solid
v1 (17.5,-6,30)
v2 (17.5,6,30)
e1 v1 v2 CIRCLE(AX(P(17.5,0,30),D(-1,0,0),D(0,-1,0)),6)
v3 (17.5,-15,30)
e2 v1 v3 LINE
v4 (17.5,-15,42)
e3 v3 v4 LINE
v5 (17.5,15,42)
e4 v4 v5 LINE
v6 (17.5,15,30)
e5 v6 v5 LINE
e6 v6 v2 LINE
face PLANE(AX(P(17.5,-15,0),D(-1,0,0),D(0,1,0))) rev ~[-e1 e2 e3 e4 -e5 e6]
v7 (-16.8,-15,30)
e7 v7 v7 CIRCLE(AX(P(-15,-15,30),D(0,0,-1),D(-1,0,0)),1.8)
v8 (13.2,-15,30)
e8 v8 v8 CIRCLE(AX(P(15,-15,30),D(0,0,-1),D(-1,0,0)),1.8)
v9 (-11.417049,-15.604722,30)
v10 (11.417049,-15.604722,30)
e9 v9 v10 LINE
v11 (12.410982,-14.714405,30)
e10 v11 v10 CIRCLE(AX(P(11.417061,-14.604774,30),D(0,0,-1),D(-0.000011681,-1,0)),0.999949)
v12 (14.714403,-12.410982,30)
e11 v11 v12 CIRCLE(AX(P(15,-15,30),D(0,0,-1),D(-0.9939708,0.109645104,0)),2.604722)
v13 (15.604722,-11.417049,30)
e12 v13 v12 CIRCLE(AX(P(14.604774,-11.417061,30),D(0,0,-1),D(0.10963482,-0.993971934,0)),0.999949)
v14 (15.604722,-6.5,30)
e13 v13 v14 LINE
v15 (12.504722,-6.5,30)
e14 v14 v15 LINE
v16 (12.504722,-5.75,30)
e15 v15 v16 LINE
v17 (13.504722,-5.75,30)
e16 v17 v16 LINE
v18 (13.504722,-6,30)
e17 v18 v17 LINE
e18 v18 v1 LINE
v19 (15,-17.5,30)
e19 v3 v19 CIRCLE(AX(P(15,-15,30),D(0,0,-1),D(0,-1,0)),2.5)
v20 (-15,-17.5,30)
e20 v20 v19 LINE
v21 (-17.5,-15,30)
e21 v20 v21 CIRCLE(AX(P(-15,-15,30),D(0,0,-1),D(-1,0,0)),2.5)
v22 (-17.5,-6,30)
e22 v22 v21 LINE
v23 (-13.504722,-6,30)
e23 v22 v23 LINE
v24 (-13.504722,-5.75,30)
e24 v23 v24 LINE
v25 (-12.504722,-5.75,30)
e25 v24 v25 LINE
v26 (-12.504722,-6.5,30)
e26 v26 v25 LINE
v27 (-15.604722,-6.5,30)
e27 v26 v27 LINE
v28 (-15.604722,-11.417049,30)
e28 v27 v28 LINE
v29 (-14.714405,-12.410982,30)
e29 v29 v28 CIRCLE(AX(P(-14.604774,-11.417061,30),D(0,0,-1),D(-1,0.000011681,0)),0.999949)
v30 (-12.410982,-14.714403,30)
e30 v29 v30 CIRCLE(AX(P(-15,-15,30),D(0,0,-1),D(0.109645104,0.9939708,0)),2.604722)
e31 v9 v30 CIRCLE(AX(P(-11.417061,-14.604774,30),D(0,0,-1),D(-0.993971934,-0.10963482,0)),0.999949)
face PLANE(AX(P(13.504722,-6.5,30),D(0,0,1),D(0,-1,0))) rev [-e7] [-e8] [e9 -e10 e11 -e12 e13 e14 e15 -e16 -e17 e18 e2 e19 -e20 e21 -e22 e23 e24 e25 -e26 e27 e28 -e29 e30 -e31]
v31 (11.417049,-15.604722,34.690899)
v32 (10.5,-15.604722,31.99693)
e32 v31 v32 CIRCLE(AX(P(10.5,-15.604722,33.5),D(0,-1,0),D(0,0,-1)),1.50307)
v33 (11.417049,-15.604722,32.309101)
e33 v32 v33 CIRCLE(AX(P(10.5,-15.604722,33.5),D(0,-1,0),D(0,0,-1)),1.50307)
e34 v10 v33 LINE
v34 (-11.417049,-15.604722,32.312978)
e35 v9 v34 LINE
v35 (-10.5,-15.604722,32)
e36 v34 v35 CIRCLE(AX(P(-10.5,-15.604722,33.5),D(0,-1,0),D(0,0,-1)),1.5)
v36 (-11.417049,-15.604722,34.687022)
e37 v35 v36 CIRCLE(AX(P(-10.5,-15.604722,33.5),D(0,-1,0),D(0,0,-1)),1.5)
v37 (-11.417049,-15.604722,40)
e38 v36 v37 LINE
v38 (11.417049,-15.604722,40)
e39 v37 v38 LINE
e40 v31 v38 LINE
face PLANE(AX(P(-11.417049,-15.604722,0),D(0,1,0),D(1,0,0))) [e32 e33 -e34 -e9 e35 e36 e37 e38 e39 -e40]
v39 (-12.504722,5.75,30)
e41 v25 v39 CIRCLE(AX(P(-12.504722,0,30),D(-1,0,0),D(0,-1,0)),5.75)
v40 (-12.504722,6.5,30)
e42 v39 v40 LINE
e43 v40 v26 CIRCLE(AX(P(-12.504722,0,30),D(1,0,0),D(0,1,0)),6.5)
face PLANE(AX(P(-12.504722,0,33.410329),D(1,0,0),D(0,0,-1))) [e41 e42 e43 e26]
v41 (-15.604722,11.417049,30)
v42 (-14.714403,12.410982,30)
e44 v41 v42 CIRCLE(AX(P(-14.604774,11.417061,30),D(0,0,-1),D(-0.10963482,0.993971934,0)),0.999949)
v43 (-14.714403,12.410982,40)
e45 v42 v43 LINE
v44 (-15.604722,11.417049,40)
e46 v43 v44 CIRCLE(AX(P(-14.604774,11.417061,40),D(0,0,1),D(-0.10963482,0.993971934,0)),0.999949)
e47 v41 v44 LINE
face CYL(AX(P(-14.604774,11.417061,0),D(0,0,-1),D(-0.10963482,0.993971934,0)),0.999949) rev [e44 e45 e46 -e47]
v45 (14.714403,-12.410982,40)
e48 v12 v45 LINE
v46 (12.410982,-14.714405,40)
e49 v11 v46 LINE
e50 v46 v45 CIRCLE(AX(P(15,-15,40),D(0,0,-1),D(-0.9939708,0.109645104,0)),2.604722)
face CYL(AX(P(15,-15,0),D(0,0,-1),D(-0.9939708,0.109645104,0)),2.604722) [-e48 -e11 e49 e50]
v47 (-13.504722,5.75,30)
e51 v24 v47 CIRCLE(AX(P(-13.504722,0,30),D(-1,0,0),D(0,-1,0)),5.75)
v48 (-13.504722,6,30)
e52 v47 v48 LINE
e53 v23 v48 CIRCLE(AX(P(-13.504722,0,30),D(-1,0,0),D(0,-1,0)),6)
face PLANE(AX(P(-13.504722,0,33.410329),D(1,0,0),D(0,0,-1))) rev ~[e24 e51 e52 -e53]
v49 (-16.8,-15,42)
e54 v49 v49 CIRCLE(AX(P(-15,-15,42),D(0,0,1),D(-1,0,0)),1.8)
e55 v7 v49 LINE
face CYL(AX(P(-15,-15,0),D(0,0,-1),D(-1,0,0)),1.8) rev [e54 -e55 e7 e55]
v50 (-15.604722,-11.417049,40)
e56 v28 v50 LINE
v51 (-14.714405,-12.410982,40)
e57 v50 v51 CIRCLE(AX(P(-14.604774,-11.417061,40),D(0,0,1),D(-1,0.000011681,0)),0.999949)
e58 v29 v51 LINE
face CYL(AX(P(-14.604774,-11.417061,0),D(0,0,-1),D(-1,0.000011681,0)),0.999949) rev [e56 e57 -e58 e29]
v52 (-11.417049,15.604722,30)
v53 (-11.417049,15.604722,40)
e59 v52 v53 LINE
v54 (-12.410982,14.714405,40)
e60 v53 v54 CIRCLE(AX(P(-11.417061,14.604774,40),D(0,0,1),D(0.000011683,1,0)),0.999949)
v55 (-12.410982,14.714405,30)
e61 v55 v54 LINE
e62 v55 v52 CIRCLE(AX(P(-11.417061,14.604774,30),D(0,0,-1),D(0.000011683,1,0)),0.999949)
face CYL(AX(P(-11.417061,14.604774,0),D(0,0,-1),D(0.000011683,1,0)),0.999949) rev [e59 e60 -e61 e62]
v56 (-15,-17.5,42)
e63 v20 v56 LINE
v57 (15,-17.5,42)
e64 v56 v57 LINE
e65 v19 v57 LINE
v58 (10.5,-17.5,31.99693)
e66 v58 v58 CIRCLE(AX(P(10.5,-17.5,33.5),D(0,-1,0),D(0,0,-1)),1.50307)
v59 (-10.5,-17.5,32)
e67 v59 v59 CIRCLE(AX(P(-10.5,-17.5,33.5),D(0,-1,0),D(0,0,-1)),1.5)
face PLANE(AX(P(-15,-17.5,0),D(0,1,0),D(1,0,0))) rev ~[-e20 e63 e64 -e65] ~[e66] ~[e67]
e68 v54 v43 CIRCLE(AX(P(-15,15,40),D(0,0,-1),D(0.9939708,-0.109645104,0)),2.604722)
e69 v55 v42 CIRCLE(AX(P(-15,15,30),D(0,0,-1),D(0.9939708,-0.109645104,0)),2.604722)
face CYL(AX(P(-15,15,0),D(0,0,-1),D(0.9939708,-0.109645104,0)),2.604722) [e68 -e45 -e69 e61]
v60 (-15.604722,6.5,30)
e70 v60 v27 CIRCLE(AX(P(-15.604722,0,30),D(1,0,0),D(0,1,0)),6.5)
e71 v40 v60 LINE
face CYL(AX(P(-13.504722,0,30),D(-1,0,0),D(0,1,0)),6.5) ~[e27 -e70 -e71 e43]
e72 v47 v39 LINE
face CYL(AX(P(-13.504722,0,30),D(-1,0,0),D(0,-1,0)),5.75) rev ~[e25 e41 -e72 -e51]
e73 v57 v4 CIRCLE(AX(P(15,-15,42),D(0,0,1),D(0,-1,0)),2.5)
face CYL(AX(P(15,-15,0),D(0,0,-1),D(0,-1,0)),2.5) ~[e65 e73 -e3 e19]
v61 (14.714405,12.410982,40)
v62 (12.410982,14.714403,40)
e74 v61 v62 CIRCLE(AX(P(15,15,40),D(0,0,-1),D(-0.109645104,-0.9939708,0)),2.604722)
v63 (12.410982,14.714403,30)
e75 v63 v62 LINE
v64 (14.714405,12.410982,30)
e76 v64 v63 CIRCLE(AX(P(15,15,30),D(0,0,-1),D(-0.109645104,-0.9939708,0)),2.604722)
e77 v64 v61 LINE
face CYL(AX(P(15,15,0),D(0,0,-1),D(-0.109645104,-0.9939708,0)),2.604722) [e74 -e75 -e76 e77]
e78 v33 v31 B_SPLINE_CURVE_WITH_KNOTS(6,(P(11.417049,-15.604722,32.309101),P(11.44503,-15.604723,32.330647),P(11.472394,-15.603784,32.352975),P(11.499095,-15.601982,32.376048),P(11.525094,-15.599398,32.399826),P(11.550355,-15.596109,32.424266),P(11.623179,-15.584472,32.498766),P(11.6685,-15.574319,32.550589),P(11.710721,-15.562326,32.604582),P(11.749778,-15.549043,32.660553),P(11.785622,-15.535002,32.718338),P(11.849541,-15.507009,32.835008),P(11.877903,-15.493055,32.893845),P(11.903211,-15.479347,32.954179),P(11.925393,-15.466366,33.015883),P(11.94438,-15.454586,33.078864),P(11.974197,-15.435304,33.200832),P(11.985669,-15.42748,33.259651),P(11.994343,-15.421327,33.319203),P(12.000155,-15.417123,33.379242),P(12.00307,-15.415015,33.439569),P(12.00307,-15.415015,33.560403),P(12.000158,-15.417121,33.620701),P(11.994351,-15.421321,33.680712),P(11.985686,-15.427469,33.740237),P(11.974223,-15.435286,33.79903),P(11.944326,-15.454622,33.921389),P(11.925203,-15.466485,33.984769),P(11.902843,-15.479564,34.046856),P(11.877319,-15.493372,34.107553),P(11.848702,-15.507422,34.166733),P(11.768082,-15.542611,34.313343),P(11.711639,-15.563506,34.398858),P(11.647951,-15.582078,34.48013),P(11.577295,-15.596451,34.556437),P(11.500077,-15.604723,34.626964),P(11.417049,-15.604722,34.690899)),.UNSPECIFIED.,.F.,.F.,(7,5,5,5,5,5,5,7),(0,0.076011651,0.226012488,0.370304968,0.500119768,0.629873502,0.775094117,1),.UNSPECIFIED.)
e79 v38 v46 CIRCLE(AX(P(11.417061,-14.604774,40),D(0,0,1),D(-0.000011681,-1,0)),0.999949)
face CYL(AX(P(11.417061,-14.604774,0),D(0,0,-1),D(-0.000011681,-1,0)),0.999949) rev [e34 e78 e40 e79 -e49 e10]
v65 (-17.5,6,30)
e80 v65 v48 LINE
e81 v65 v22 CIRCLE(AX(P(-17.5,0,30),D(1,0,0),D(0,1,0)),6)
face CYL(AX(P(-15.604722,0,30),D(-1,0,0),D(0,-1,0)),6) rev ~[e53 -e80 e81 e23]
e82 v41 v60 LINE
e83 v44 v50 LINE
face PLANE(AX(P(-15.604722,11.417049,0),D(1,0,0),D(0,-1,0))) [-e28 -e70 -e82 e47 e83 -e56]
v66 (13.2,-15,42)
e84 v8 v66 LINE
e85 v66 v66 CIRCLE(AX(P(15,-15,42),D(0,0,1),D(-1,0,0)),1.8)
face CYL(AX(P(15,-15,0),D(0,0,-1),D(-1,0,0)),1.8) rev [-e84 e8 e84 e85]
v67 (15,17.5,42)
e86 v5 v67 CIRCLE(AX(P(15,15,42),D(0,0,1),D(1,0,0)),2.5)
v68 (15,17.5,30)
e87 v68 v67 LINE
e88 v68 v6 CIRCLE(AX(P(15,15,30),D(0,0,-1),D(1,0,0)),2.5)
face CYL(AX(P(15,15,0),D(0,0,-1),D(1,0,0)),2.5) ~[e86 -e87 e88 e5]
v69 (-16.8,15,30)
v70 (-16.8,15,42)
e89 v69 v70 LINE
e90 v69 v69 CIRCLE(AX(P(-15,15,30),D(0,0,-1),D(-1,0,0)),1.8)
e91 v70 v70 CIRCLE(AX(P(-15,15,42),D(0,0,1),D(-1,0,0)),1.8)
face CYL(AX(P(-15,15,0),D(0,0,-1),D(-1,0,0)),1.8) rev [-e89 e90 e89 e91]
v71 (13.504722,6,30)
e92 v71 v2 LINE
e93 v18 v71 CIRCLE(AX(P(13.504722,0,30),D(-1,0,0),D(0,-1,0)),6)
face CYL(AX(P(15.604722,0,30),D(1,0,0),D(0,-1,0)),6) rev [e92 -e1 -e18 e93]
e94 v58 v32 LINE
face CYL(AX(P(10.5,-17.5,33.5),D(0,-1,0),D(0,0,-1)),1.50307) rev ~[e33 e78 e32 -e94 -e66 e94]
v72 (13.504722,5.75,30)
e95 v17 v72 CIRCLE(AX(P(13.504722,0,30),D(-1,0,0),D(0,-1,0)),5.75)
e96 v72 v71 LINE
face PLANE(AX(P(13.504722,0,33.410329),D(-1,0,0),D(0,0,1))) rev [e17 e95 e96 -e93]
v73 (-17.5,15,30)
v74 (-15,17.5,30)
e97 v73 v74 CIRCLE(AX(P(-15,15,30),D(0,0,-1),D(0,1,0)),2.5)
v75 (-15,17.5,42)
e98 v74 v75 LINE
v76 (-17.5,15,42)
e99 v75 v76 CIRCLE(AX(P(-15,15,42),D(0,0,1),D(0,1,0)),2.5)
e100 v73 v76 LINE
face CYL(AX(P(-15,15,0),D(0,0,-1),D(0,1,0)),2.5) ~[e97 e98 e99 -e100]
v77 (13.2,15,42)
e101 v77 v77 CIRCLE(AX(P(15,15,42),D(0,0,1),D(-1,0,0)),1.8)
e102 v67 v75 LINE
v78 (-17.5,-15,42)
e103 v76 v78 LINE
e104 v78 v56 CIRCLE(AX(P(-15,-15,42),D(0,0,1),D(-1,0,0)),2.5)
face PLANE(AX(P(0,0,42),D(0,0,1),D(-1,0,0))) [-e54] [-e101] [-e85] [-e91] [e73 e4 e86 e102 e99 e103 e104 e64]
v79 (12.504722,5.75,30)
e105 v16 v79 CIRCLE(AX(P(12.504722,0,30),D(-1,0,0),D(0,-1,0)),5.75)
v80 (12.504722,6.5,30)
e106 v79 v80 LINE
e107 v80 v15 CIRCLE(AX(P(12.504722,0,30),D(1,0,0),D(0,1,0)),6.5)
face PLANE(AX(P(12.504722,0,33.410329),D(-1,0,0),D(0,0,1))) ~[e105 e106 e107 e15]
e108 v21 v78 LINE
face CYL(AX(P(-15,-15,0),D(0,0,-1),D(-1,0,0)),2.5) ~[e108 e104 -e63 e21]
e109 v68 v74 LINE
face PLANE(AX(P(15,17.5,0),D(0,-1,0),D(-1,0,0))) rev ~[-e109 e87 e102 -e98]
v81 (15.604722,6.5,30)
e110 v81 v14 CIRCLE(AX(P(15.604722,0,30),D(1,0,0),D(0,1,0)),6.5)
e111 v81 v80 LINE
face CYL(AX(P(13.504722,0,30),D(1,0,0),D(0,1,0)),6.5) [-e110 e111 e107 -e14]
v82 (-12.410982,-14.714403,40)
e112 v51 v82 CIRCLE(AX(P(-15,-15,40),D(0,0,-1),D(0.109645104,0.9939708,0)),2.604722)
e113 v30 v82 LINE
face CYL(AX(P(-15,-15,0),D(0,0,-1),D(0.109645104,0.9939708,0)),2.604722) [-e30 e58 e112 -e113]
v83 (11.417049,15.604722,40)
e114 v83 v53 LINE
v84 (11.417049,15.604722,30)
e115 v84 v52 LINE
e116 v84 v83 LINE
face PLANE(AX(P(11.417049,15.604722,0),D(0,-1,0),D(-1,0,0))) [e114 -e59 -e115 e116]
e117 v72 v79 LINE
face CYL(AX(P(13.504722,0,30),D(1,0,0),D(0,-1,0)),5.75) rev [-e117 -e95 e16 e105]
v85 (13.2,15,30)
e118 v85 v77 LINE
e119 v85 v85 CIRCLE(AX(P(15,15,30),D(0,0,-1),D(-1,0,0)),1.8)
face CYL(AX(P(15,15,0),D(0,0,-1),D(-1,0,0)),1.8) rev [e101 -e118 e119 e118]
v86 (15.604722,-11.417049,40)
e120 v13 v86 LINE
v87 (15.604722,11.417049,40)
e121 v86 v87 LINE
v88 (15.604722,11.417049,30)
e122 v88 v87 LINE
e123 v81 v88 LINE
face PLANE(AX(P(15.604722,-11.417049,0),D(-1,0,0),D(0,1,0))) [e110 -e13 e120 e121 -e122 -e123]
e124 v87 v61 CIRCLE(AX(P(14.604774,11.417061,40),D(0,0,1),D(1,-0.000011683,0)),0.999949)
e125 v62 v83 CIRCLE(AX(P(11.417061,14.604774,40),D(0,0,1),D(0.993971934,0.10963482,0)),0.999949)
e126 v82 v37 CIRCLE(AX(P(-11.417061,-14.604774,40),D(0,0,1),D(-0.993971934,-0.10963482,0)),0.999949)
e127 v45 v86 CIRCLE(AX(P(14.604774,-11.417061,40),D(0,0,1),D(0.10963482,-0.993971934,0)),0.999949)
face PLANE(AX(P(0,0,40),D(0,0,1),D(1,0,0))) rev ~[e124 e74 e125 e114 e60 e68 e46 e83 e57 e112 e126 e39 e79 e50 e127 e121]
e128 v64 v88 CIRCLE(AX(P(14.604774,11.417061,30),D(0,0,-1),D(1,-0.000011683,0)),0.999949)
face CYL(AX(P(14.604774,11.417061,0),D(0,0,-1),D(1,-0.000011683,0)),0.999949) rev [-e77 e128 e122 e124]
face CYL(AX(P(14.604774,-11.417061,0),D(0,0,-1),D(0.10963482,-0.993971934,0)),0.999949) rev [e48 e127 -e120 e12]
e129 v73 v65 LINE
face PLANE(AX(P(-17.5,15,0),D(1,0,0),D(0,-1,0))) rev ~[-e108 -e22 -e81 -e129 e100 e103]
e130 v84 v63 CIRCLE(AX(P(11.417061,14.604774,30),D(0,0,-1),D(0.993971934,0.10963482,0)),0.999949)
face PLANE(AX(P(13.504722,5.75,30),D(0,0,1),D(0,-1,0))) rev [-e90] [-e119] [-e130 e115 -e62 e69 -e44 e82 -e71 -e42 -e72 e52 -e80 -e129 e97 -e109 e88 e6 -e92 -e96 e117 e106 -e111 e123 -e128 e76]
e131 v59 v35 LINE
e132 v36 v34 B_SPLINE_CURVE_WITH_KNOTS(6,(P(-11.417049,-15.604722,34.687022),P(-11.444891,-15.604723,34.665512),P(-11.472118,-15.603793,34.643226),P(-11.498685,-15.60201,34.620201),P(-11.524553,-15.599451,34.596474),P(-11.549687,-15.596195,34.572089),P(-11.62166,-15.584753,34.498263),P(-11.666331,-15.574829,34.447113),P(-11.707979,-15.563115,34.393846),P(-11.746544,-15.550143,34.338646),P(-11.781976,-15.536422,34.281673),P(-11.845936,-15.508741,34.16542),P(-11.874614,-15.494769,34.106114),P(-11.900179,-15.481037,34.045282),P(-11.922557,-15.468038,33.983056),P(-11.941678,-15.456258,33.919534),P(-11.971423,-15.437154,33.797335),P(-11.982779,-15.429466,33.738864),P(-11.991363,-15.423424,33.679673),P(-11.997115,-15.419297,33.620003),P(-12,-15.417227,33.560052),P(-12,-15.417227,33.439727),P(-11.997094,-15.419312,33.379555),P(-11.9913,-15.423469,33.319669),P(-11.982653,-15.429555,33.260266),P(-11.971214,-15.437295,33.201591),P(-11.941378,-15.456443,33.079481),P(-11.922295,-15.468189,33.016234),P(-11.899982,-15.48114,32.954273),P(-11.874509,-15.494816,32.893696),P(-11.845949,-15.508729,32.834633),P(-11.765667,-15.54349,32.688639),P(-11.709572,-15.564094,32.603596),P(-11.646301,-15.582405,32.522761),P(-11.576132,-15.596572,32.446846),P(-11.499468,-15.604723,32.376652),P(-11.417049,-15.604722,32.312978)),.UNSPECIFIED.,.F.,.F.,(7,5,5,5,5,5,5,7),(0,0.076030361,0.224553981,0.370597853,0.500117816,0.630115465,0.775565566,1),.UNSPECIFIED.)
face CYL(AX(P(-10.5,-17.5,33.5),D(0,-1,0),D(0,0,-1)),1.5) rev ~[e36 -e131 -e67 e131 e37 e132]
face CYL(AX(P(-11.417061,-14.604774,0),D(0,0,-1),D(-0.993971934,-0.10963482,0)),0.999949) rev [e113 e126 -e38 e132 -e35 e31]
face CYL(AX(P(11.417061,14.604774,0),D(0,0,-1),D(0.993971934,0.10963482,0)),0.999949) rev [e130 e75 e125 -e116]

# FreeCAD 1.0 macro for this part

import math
import FreeCAD as App
import Part
import Sketcher


def add_polygon(sketch, points):
    """Adds a closed chain of lines whose ends are joined by coincident constraints."""
    first, n = sketch.GeometryCount, len(points)
    for a, b in zip(points, points[1:] + points[:1]):
        sketch.addGeometry(Part.LineSegment(App.Vector(*a, 0), App.Vector(*b, 0)), False)
    for i in range(n):
        sketch.addConstraint(Sketcher.Constraint("Coincident", first + i, 2, first + (i + 1) % n, 1))

doc = App.newDocument("Part")
body = doc.addObject("PartDesign::Body", "Body")

sketch1 = body.newObject("Sketcher::SketchObject", "Sketch")
sketch1.AttachmentSupport = (doc.getObject("XY_Plane"), [""])
sketch1.MapMode = "FlatFace"
sketch1.addGeometry(Part.LineSegment(App.Vector(17.5, -15, 0), App.Vector(17.5, 15, 0)), False)
sketch1.addGeometry(Part.ArcOfCircle(Part.Circle(App.Vector(15, 15, 0), App.Vector(0, 0, 1), 2.5), math.radians(0), math.radians(90)), False)
sketch1.addGeometry(Part.LineSegment(App.Vector(15, 17.5, 0), App.Vector(-15, 17.5, 0)), False)
sketch1.addGeometry(Part.ArcOfCircle(Part.Circle(App.Vector(-15, 15, 0), App.Vector(0, 0, 1), 2.5), math.radians(90), math.radians(180)), False)
sketch1.addGeometry(Part.LineSegment(App.Vector(-17.5, 15, 0), App.Vector(-17.5, -15, 0)), False)
sketch1.addGeometry(Part.ArcOfCircle(Part.Circle(App.Vector(-15, -15, 0), App.Vector(0, 0, 1), 2.5), math.radians(180), math.radians(270)), False)
sketch1.addGeometry(Part.LineSegment(App.Vector(-15, -17.5, 0), App.Vector(15, -17.5, 0)), False)
sketch1.addGeometry(Part.ArcOfCircle(Part.Circle(App.Vector(15, -15, 0), App.Vector(0, 0, 1), 2.5), math.radians(-90), math.radians(0)), False)
sketch1.addGeometry(Part.Circle(App.Vector(15, 15, 0), App.Vector(0, 0, 1), 1.8), False)
sketch1.addGeometry(Part.Circle(App.Vector(-15, 15, 0), App.Vector(0, 0, 1), 1.8), False)
sketch1.addGeometry(Part.Circle(App.Vector(15, -15, 0), App.Vector(0, 0, 1), 1.8), False)
sketch1.addGeometry(Part.LineSegment(App.Vector(-15.6, -11.4, 0), App.Vector(-15.6, 11.4, 0)), False)
sketch1.addGeometry(Part.ArcOfCircle(Part.Circle(App.Vector(-14.6, 11.4, 0), App.Vector(0, 0, 1), 1), math.radians(96), math.radians(180)), False)
sketch1.addGeometry(Part.ArcOfCircle(Part.Circle(App.Vector(-15, 15, 0), App.Vector(0, 0, 1), 2.6), math.radians(-84), math.radians(-6)), False)
sketch1.addGeometry(Part.ArcOfCircle(Part.Circle(App.Vector(-11.4, 14.6, 0), App.Vector(0, 0, 1), 1), math.radians(90), math.radians(174)), False)
sketch1.addGeometry(Part.LineSegment(App.Vector(-11.4, 15.6, 0), App.Vector(11.4, 15.6, 0)), False)
sketch1.addGeometry(Part.ArcOfCircle(Part.Circle(App.Vector(11.4, 14.6, 0), App.Vector(0, 0, 1), 1), math.radians(6), math.radians(90)), False)
sketch1.addGeometry(Part.ArcOfCircle(Part.Circle(App.Vector(15, 15, 0), App.Vector(0, 0, 1), 2.6), math.radians(-174), math.radians(-96)), False)
sketch1.addGeometry(Part.ArcOfCircle(Part.Circle(App.Vector(14.6, 11.4, 0), App.Vector(0, 0, 1), 1), math.radians(0), math.radians(84)), False)
sketch1.addGeometry(Part.LineSegment(App.Vector(15.6, 11.4, 0), App.Vector(15.6, -11.4, 0)), False)
sketch1.addGeometry(Part.ArcOfCircle(Part.Circle(App.Vector(14.6, -11.4, 0), App.Vector(0, 0, 1), 1), math.radians(-84), math.radians(0)), False)
sketch1.addGeometry(Part.ArcOfCircle(Part.Circle(App.Vector(15, -15, 0), App.Vector(0, 0, 1), 2.6), math.radians(96), math.radians(174)), False)
sketch1.addGeometry(Part.ArcOfCircle(Part.Circle(App.Vector(11.4, -14.6, 0), App.Vector(0, 0, 1), 1), math.radians(-90), math.radians(-6)), False)
sketch1.addGeometry(Part.LineSegment(App.Vector(11.4, -15.6, 0), App.Vector(-11.4, -15.6, 0)), False)
sketch1.addGeometry(Part.ArcOfCircle(Part.Circle(App.Vector(-11.4, -14.6, 0), App.Vector(0, 0, 1), 1), math.radians(-174), math.radians(-90)), False)
sketch1.addGeometry(Part.ArcOfCircle(Part.Circle(App.Vector(-15, -15, 0), App.Vector(0, 0, 1), 2.6), math.radians(6), math.radians(84)), False)
sketch1.addGeometry(Part.ArcOfCircle(Part.Circle(App.Vector(-14.6, -11.4, 0), App.Vector(0, 0, 1), 1), math.radians(180), math.radians(264)), False)
sketch1.addGeometry(Part.Circle(App.Vector(-15, -15, 0), App.Vector(0, 0, 1), 1.8), False)
sketch1.addConstraint(Sketcher.Constraint("Tangent", 0, 2, 1, 1))
sketch1.addConstraint(Sketcher.Constraint("Tangent", 1, 2, 2, 1))
sketch1.addConstraint(Sketcher.Constraint("Tangent", 2, 2, 3, 1))
sketch1.addConstraint(Sketcher.Constraint("Tangent", 3, 2, 4, 1))
sketch1.addConstraint(Sketcher.Constraint("Tangent", 4, 2, 5, 1))
sketch1.addConstraint(Sketcher.Constraint("Tangent", 5, 2, 6, 1))
sketch1.addConstraint(Sketcher.Constraint("Tangent", 6, 2, 7, 1))
sketch1.addConstraint(Sketcher.Constraint("Tangent", 7, 2, 0, 1))
sketch1.addConstraint(Sketcher.Constraint("Coincident", 11, 2, 12, 2))
sketch1.addConstraint(Sketcher.Constraint("Coincident", 12, 1, 13, 1))
sketch1.addConstraint(Sketcher.Constraint("Coincident", 13, 2, 14, 2))
sketch1.addConstraint(Sketcher.Constraint("Coincident", 14, 1, 15, 1))
sketch1.addConstraint(Sketcher.Constraint("Coincident", 15, 2, 16, 2))
sketch1.addConstraint(Sketcher.Constraint("Coincident", 16, 1, 17, 1))
sketch1.addConstraint(Sketcher.Constraint("Coincident", 17, 2, 18, 2))
sketch1.addConstraint(Sketcher.Constraint("Coincident", 18, 1, 19, 1))
sketch1.addConstraint(Sketcher.Constraint("Coincident", 19, 2, 20, 2))
sketch1.addConstraint(Sketcher.Constraint("Coincident", 20, 1, 21, 1))
sketch1.addConstraint(Sketcher.Constraint("Coincident", 21, 2, 22, 2))
sketch1.addConstraint(Sketcher.Constraint("Coincident", 22, 1, 23, 1))
sketch1.addConstraint(Sketcher.Constraint("Coincident", 23, 2, 24, 2))
sketch1.addConstraint(Sketcher.Constraint("Coincident", 24, 1, 25, 1))
sketch1.addConstraint(Sketcher.Constraint("Coincident", 25, 2, 26, 2))
sketch1.addConstraint(Sketcher.Constraint("Coincident", 26, 1, 11, 1))
sketch1.addConstraint(Sketcher.Constraint("Vertical", 0))
sketch1.addConstraint(Sketcher.Constraint("Horizontal", 2))
sketch1.addConstraint(Sketcher.Constraint("Vertical", 4))
sketch1.addConstraint(Sketcher.Constraint("Horizontal", 6))
sketch1.addConstraint(Sketcher.Constraint("Vertical", 11))
sketch1.addConstraint(Sketcher.Constraint("Horizontal", 15))
sketch1.addConstraint(Sketcher.Constraint("Vertical", 19))
sketch1.addConstraint(Sketcher.Constraint("Horizontal", 23))
sketch1.addConstraint(Sketcher.Constraint("Coincident", 8, 3, 1, 3))
sketch1.addConstraint(Sketcher.Constraint("Coincident", 9, 3, 3, 3))
sketch1.addConstraint(Sketcher.Constraint("Coincident", 10, 3, 7, 3))
sketch1.addConstraint(Sketcher.Constraint("Coincident", 13, 3, 3, 3))
sketch1.addConstraint(Sketcher.Constraint("Coincident", 17, 3, 1, 3))
sketch1.addConstraint(Sketcher.Constraint("Coincident", 21, 3, 7, 3))
sketch1.addConstraint(Sketcher.Constraint("Coincident", 25, 3, 5, 3))
sketch1.addConstraint(Sketcher.Constraint("Coincident", 27, 3, 5, 3))
sketch1.addConstraint(Sketcher.Constraint("Equal", 1, 3))
sketch1.addConstraint(Sketcher.Constraint("Equal", 3, 5))
sketch1.addConstraint(Sketcher.Constraint("Equal", 5, 7))
sketch1.addConstraint(Sketcher.Constraint("Equal", 8, 9))
sketch1.addConstraint(Sketcher.Constraint("Equal", 9, 10))
sketch1.addConstraint(Sketcher.Constraint("Equal", 12, 14))
sketch1.addConstraint(Sketcher.Constraint("Equal", 14, 16))
sketch1.addConstraint(Sketcher.Constraint("Equal", 13, 17))
sketch1.addConstraint(Sketcher.Constraint("Equal", 16, 18))
sketch1.addConstraint(Sketcher.Constraint("Equal", 18, 20))
sketch1.addConstraint(Sketcher.Constraint("Equal", 17, 21))
sketch1.addConstraint(Sketcher.Constraint("Equal", 20, 22))
sketch1.addConstraint(Sketcher.Constraint("Equal", 22, 24))
sketch1.addConstraint(Sketcher.Constraint("Equal", 21, 25))
sketch1.addConstraint(Sketcher.Constraint("Equal", 24, 26))
sketch1.addConstraint(Sketcher.Constraint("Equal", 10, 27))
sketch1.addConstraint(Sketcher.Constraint("Symmetric", 1, 3, 5, 3, -1, 1))
sketch1.addConstraint(Sketcher.Constraint("Symmetric", 11, 2, 19, 2, -1, 1))
sketch1.addConstraint(Sketcher.Constraint("Symmetric", 14, 1, 22, 1, -1, 1))
sketch1.addConstraint(Sketcher.Constraint("Horizontal", 12, 1, 17, 2))
sketch1.addConstraint(Sketcher.Constraint("Horizontal", 11, 2, 18, 1))
sketch1.addConstraint(Sketcher.Constraint("Horizontal", 20, 1, 25, 2))
sketch1.addConstraint(Sketcher.Constraint("Horizontal", 19, 2, 26, 1))
sketch1.addConstraint(Sketcher.Constraint("Vertical", 16, 1, 21, 2))
sketch1.addConstraint(Sketcher.Constraint("Vertical", 15, 2, 22, 1))
sketch1.addConstraint(Sketcher.Constraint("Vertical", 14, 1, 23, 2))
sketch1.addConstraint(Sketcher.Constraint("Vertical", 13, 2, 24, 1))
sketch1.addConstraint(Sketcher.Constraint("Equal", 6, 0))
sketch1.addConstraint(Sketcher.Constraint("Equal", 23, 11))
sketch1.addConstraint(Sketcher.Constraint("Diameter", 8, 3.6))
sketch1.addConstraint(Sketcher.Constraint("Radius", 1, 2.5))
sketch1.addConstraint(Sketcher.Constraint("DistanceX", 2, 2, 2, 1, 30.0))
sketch1.addConstraint(Sketcher.Constraint("Radius", 12, 0.999949))
sketch1.addConstraint(Sketcher.Constraint("DistanceX", 15, 1, 15, 2, 22.834099))
sketch1.addConstraint(Sketcher.Constraint("Radius", 13, 2.604722))
sketch1.addConstraint(Sketcher.Constraint("DistanceY", -1, 1, 12, 3, 11.417061))
sketch1.addConstraint(Sketcher.Constraint("DistanceX", 14, 3, -1, 1, 11.417061))
sketch1.addConstraint(Sketcher.Constraint("DistanceX", 13, 2, -1, 1, 12.410982))
sketch1.addConstraint(Sketcher.Constraint("DistanceY", -1, 1, 17, 2, 12.410982))
sketch1.addConstraint(Sketcher.Constraint("DistanceX", -1, 1, 21, 2, 12.410982))
sketch1.addConstraint(Sketcher.Constraint("DistanceY", 25, 2, -1, 1, 12.410982))
pad1 = body.newObject("PartDesign::Pad", "Pad")
pad1.Profile = sketch1
pad1.Length = 42

sketch2 = body.newObject("Sketcher::SketchObject", "Sketch001")
sketch2.AttachmentSupport = (doc.getObject("XZ_Plane"), [""])
sketch2.MapMode = "FlatFace"
sketch2.AttachmentOffset = App.Placement(App.Vector(0, 0, -17.5), App.Rotation())
sketch2.addGeometry(Part.Circle(App.Vector(0, 12, 0), App.Vector(0, 0, 1), 6), False)
sketch2.addConstraint(Sketcher.Constraint("PointOnObject", 0, 3, -2))
sketch2.addConstraint(Sketcher.Constraint("Diameter", 0, 12.0))
sketch2.addConstraint(Sketcher.Constraint("DistanceY", -1, 1, 0, 3, 12.0))
pocket1 = body.newObject("PartDesign::Pocket", "Pocket")
pocket1.Profile = sketch2
pocket1.Type = "ThroughAll"
pocket1.Reversed = True

sketch3 = body.newObject("Sketcher::SketchObject", "Sketch002")
sketch3.AttachmentSupport = (doc.getObject("YZ_Plane"), [""])
sketch3.MapMode = "FlatFace"
sketch3.AttachmentOffset = App.Placement(App.Vector(0, 0, -17.5), App.Rotation())
sketch3.addGeometry(Part.Circle(App.Vector(0, 30, 0), App.Vector(0, 0, 1), 6), False)
sketch3.addConstraint(Sketcher.Constraint("PointOnObject", 0, 3, -2))
sketch3.addConstraint(Sketcher.Constraint("Diameter", 0, 12.0))
sketch3.addConstraint(Sketcher.Constraint("DistanceY", -1, 1, 0, 3, 30.0))
pocket2 = body.newObject("PartDesign::Pocket", "Pocket001")
pocket2.Profile = sketch3
pocket2.Type = "ThroughAll"
pocket2.Reversed = True

sketch4 = body.newObject("Sketcher::SketchObject", "Sketch003")
sketch4.AttachmentSupport = (doc.getObject("YZ_Plane"), [""])
sketch4.MapMode = "FlatFace"
sketch4.AttachmentOffset = App.Placement(App.Vector(0, 0, 17.5), App.Rotation())
add_polygon(sketch4, [(-19, 30), (-19, -8), (19, -5), (19, 30)])
sketch4.addConstraint(Sketcher.Constraint("Vertical", 0))
sketch4.addConstraint(Sketcher.Constraint("Vertical", 2))
sketch4.addConstraint(Sketcher.Constraint("Horizontal", 3))
sketch4.addConstraint(Sketcher.Constraint("DistanceY", -1, 1, 2, 2, 30.0))
sketch4.addConstraint(Sketcher.Constraint("DistanceX", 3, 2, 3, 1, 37.679971))
sketch4.addConstraint(Sketcher.Constraint("DistanceY", 2, 1, 2, 2, 35.13365))
sketch4.addConstraint(Sketcher.Constraint("DistanceY", 0, 2, 0, 1, 37.937077))
sketch4.addConstraint(Sketcher.Constraint("DistanceX", 0, 2, -1, 1, 18.578649))
pocket3 = body.newObject("PartDesign::Pocket", "Pocket002")
pocket3.Profile = sketch4
pocket3.Type = "ThroughAll"

sketch5 = body.newObject("Sketcher::SketchObject", "Sketch004")
sketch5.AttachmentSupport = (doc.getObject("YZ_Plane"), [""])
sketch5.MapMode = "FlatFace"
sketch5.AttachmentOffset = App.Placement(App.Vector(0, 0, -15.604722), App.Rotation())
sketch5.addGeometry(Part.LineSegment(App.Vector(-6.5, 30, 0), App.Vector(-6, 30, 0)), False)
sketch5.addGeometry(Part.ArcOfCircle(Part.Circle(App.Vector(0, 30, 0), App.Vector(0, 0, 1), 6), math.radians(0), math.radians(180)), False)
sketch5.addGeometry(Part.LineSegment(App.Vector(6, 30, 0), App.Vector(6.5, 30, 0)), False)
sketch5.addGeometry(Part.ArcOfCircle(Part.Circle(App.Vector(0, 30, 0), App.Vector(0, 0, 1), 6.5), math.radians(0), math.radians(180)), False)
sketch5.addConstraint(Sketcher.Constraint("Coincident", 0, 2, 1, 2))
sketch5.addConstraint(Sketcher.Constraint("Coincident", 1, 1, 2, 1))
sketch5.addConstraint(Sketcher.Constraint("Coincident", 2, 2, 3, 1))
sketch5.addConstraint(Sketcher.Constraint("Coincident", 3, 2, 0, 1))
sketch5.addConstraint(Sketcher.Constraint("Horizontal", 0))
sketch5.addConstraint(Sketcher.Constraint("Horizontal", 2))
sketch5.addConstraint(Sketcher.Constraint("Coincident", 3, 3, 1, 3))
sketch5.addConstraint(Sketcher.Constraint("Symmetric", 0, 2, 1, 1, -2))
sketch5.addConstraint(Sketcher.Constraint("Horizontal", 3, 3, 0, 2))
sketch5.addConstraint(Sketcher.Constraint("Radius", 1, 6.0))
sketch5.addConstraint(Sketcher.Constraint("Radius", 3, 6.5))
sketch5.addConstraint(Sketcher.Constraint("DistanceY", -1, 1, 1, 3, 30.0))
pad2 = body.newObject("PartDesign::Pad", "Pad001")
pad2.Profile = sketch5
pad2.Length = 2.1

sketch6 = body.newObject("Sketcher::SketchObject", "Sketch005")
sketch6.AttachmentSupport = (doc.getObject("YZ_Plane"), [""])
sketch6.MapMode = "FlatFace"
sketch6.AttachmentOffset = App.Placement(App.Vector(0, 0, -13.504722), App.Rotation())
sketch6.addGeometry(Part.LineSegment(App.Vector(-6.5, 30, 0), App.Vector(-5.8, 30, 0)), False)
sketch6.addGeometry(Part.ArcOfCircle(Part.Circle(App.Vector(0, 30, 0), App.Vector(0, 0, 1), 5.8), math.radians(0), math.radians(180)), False)
sketch6.addGeometry(Part.LineSegment(App.Vector(5.8, 30, 0), App.Vector(6.5, 30, 0)), False)
sketch6.addGeometry(Part.ArcOfCircle(Part.Circle(App.Vector(0, 30, 0), App.Vector(0, 0, 1), 6.5), math.radians(0), math.radians(180)), False)
sketch6.addConstraint(Sketcher.Constraint("Coincident", 0, 2, 1, 2))
sketch6.addConstraint(Sketcher.Constraint("Coincident", 1, 1, 2, 1))
sketch6.addConstraint(Sketcher.Constraint("Coincident", 2, 2, 3, 1))
sketch6.addConstraint(Sketcher.Constraint("Coincident", 3, 2, 0, 1))
sketch6.addConstraint(Sketcher.Constraint("Horizontal", 0))
sketch6.addConstraint(Sketcher.Constraint("Horizontal", 2))
sketch6.addConstraint(Sketcher.Constraint("Coincident", 3, 3, 1, 3))
sketch6.addConstraint(Sketcher.Constraint("Symmetric", 0, 2, 1, 1, -2))
sketch6.addConstraint(Sketcher.Constraint("Horizontal", 3, 3, 0, 2))
sketch6.addConstraint(Sketcher.Constraint("Radius", 3, 6.5))
sketch6.addConstraint(Sketcher.Constraint("Radius", 1, 5.75))
sketch6.addConstraint(Sketcher.Constraint("DistanceY", -1, 1, 1, 3, 30.0))
pad3 = body.newObject("PartDesign::Pad", "Pad002")
pad3.Profile = sketch6
pad3.Length = 1
doc.recompute()

mirrored = body.newObject("PartDesign::Mirrored", "Mirrored")
mirrored.Originals = [pad2, pad3]
mirrored.MirrorPlane = (doc.getObject("YZ_Plane"), [""])
body.Tip = mirrored

sketch7 = body.newObject("Sketcher::SketchObject", "Sketch006")
sketch7.AttachmentSupport = (doc.getObject("XY_Plane"), [""])
sketch7.MapMode = "FlatFace"
sketch7.AttachmentOffset = App.Placement(App.Vector(0, 0, 40), App.Rotation())
sketch7.addGeometry(Part.LineSegment(App.Vector(-15.6, 11.4, 0), App.Vector(-15.6, -11.4, 0)), False)
sketch7.addGeometry(Part.ArcOfCircle(Part.Circle(App.Vector(-14.6, -11.4, 0), App.Vector(0, 0, 1), 1), math.radians(180), math.radians(264)), False)
sketch7.addGeometry(Part.ArcOfCircle(Part.Circle(App.Vector(-15, -15, 0), App.Vector(0, 0, 1), 2.6), math.radians(6), math.radians(84)), False)
sketch7.addGeometry(Part.ArcOfCircle(Part.Circle(App.Vector(-11.4, -14.6, 0), App.Vector(0, 0, 1), 1), math.radians(-174), math.radians(-90)), False)
sketch7.addGeometry(Part.LineSegment(App.Vector(-11.4, -15.6, 0), App.Vector(11.4, -15.6, 0)), False)
sketch7.addGeometry(Part.ArcOfCircle(Part.Circle(App.Vector(11.4, -14.6, 0), App.Vector(0, 0, 1), 1), math.radians(-90), math.radians(-6)), False)
sketch7.addGeometry(Part.ArcOfCircle(Part.Circle(App.Vector(15, -15, 0), App.Vector(0, 0, 1), 2.6), math.radians(96), math.radians(174)), False)
sketch7.addGeometry(Part.ArcOfCircle(Part.Circle(App.Vector(14.6, -11.4, 0), App.Vector(0, 0, 1), 1), math.radians(-84), math.radians(0)), False)
sketch7.addGeometry(Part.LineSegment(App.Vector(15.6, -11.4, 0), App.Vector(15.6, 11.4, 0)), False)
sketch7.addGeometry(Part.ArcOfCircle(Part.Circle(App.Vector(14.6, 11.4, 0), App.Vector(0, 0, 1), 1), math.radians(0), math.radians(84)), False)
sketch7.addGeometry(Part.ArcOfCircle(Part.Circle(App.Vector(15, 15, 0), App.Vector(0, 0, 1), 2.6), math.radians(-174), math.radians(-96)), False)
sketch7.addGeometry(Part.ArcOfCircle(Part.Circle(App.Vector(11.4, 14.6, 0), App.Vector(0, 0, 1), 1), math.radians(6), math.radians(90)), False)
sketch7.addGeometry(Part.LineSegment(App.Vector(11.4, 15.6, 0), App.Vector(-11.4, 15.6, 0)), False)
sketch7.addGeometry(Part.ArcOfCircle(Part.Circle(App.Vector(-11.4, 14.6, 0), App.Vector(0, 0, 1), 1), math.radians(90), math.radians(174)), False)
sketch7.addGeometry(Part.ArcOfCircle(Part.Circle(App.Vector(-15, 15, 0), App.Vector(0, 0, 1), 2.6), math.radians(-84), math.radians(-6)), False)
sketch7.addGeometry(Part.ArcOfCircle(Part.Circle(App.Vector(-14.6, 11.4, 0), App.Vector(0, 0, 1), 1), math.radians(96), math.radians(180)), False)
sketch7.addConstraint(Sketcher.Constraint("Coincident", 0, 2, 1, 1))
sketch7.addConstraint(Sketcher.Constraint("Coincident", 1, 2, 2, 2))
sketch7.addConstraint(Sketcher.Constraint("Coincident", 2, 1, 3, 1))
sketch7.addConstraint(Sketcher.Constraint("Coincident", 3, 2, 4, 1))
sketch7.addConstraint(Sketcher.Constraint("Coincident", 4, 2, 5, 1))
sketch7.addConstraint(Sketcher.Constraint("Coincident", 5, 2, 6, 2))
sketch7.addConstraint(Sketcher.Constraint("Coincident", 6, 1, 7, 1))
sketch7.addConstraint(Sketcher.Constraint("Coincident", 7, 2, 8, 1))
sketch7.addConstraint(Sketcher.Constraint("Coincident", 8, 2, 9, 1))
sketch7.addConstraint(Sketcher.Constraint("Coincident", 9, 2, 10, 2))
sketch7.addConstraint(Sketcher.Constraint("Coincident", 10, 1, 11, 1))
sketch7.addConstraint(Sketcher.Constraint("Coincident", 11, 2, 12, 1))
sketch7.addConstraint(Sketcher.Constraint("Coincident", 12, 2, 13, 1))
sketch7.addConstraint(Sketcher.Constraint("Coincident", 13, 2, 14, 2))
sketch7.addConstraint(Sketcher.Constraint("Coincident", 14, 1, 15, 1))
sketch7.addConstraint(Sketcher.Constraint("Coincident", 15, 2, 0, 1))
sketch7.addConstraint(Sketcher.Constraint("Vertical", 0))
sketch7.addConstraint(Sketcher.Constraint("Horizontal", 4))
sketch7.addConstraint(Sketcher.Constraint("Vertical", 8))
sketch7.addConstraint(Sketcher.Constraint("Horizontal", 12))
sketch7.addConstraint(Sketcher.Constraint("Equal", 1, 3))
sketch7.addConstraint(Sketcher.Constraint("Equal", 3, 5))
sketch7.addConstraint(Sketcher.Constraint("Equal", 2, 6))
sketch7.addConstraint(Sketcher.Constraint("Equal", 5, 7))
sketch7.addConstraint(Sketcher.Constraint("Equal", 7, 9))
sketch7.addConstraint(Sketcher.Constraint("Equal", 6, 10))
sketch7.addConstraint(Sketcher.Constraint("Equal", 9, 11))
sketch7.addConstraint(Sketcher.Constraint("Equal", 11, 13))
sketch7.addConstraint(Sketcher.Constraint("Equal", 10, 14))
sketch7.addConstraint(Sketcher.Constraint("Equal", 13, 15))
sketch7.addConstraint(Sketcher.Constraint("Symmetric", 1, 3, 9, 3, -1, 1))
sketch7.addConstraint(Sketcher.Constraint("Symmetric", 3, 3, 11, 3, -1, 1))
sketch7.addConstraint(Sketcher.Constraint("Symmetric", 6, 3, 14, 3, -1, 1))
sketch7.addConstraint(Sketcher.Constraint("Symmetric", 2, 3, 6, 3, -2))
sketch7.addConstraint(Sketcher.Constraint("Horizontal", 1, 2, 6, 1))
sketch7.addConstraint(Sketcher.Constraint("Horizontal", 0, 2, 7, 2))
sketch7.addConstraint(Sketcher.Constraint("Horizontal", 9, 2, 14, 1))
sketch7.addConstraint(Sketcher.Constraint("Horizontal", 8, 2, 15, 2))
sketch7.addConstraint(Sketcher.Constraint("Vertical", 5, 2, 10, 1))
sketch7.addConstraint(Sketcher.Constraint("Vertical", 4, 2, 11, 2))
sketch7.addConstraint(Sketcher.Constraint("Vertical", 3, 2, 12, 2))
sketch7.addConstraint(Sketcher.Constraint("Vertical", 2, 1, 13, 2))
sketch7.addConstraint(Sketcher.Constraint("Equal", 12, 0))
sketch7.addConstraint(Sketcher.Constraint("DistanceX", 2, 3, -1, 1, 15.0))
sketch7.addConstraint(Sketcher.Constraint("DistanceY", 2, 3, -1, 1, 15.0))
sketch7.addConstraint(Sketcher.Constraint("Radius", 1, 0.999949))
sketch7.addConstraint(Sketcher.Constraint("DistanceX", 4, 1, 4, 2, 22.834099))
sketch7.addConstraint(Sketcher.Constraint("Radius", 2, 2.604722))
sketch7.addConstraint(Sketcher.Constraint("DistanceY", 1, 3, -1, 1, 11.417061))
sketch7.addConstraint(Sketcher.Constraint("DistanceX", 3, 3, -1, 1, 11.417061))
sketch7.addConstraint(Sketcher.Constraint("DistanceY", 0, 2, -1, 1, 11.417049))
sketch7.addConstraint(Sketcher.Constraint("DistanceY", 1, 2, -1, 1, 12.410982))
sketch7.addConstraint(Sketcher.Constraint("DistanceX", 3, 2, -1, 1, 11.417049))
sketch7.addConstraint(Sketcher.Constraint("DistanceX", -1, 1, 5, 2, 12.410982))
sketch7.addConstraint(Sketcher.Constraint("DistanceY", -1, 1, 9, 2, 12.410982))
sketch7.addConstraint(Sketcher.Constraint("DistanceX", 13, 2, -1, 1, 12.410982))
pad4 = body.newObject("PartDesign::Pad", "Pad003")
pad4.Profile = sketch7
pad4.Length = 2

sketch8 = body.newObject("Sketcher::SketchObject", "Sketch007")
sketch8.AttachmentSupport = (doc.getObject("XZ_Plane"), [""])
sketch8.MapMode = "FlatFace"
sketch8.AttachmentOffset = App.Placement(App.Vector(0, 0, 17.5), App.Rotation())
sketch8.addGeometry(Part.Circle(App.Vector(10.5, 33.5, 0), App.Vector(0, 0, 1), 1.5), False)
sketch8.addGeometry(Part.Circle(App.Vector(-10.5, 33.5, 0), App.Vector(0, 0, 1), 1.5), False)
sketch8.addConstraint(Sketcher.Constraint("Symmetric", 0, 3, 1, 3, -2))
sketch8.addConstraint(Sketcher.Constraint("Diameter", 1, 3.0))
sketch8.addConstraint(Sketcher.Constraint("DistanceX", 1, 3, 0, 3, 21.0))
sketch8.addConstraint(Sketcher.Constraint("DistanceY", -1, 1, 0, 3, 33.5))
sketch8.addConstraint(Sketcher.Constraint("Diameter", 0, 3.006141))
pocket4 = body.newObject("PartDesign::Pocket", "Pocket003")
pocket4.Profile = sketch8
pocket4.Length = 3

doc.recompute()
